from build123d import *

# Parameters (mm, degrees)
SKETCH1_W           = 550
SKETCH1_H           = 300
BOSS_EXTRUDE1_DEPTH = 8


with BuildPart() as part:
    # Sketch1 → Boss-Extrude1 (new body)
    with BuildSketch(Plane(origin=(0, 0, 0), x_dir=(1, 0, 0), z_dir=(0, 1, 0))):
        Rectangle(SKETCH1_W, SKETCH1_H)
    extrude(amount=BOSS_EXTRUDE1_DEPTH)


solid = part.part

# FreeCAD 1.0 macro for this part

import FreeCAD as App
import Part
import Sketcher
from FreeCAD import Vector
Q = App.Units.Quantity


def add_polygon(sketch, points):
    """Adds a closed chain of lines whose ends are joined by coincident constraints."""
    first, n = sketch.GeometryCount, len(points)
    for a, b in zip(points, points[1:] + points[:1]):
        sketch.addGeometry(Part.LineSegment(App.Vector(*a, 0), App.Vector(*b, 0)), False)
    for i in range(n):
        sketch.addConstraint(Sketcher.Constraint("Coincident", first + i, 2, first + (i + 1) % n, 1))

doc = App.newDocument("Part")
body = doc.addObject("PartDesign::Body", "Body")

sketch1 = doc.addObject("Sketcher::SketchObject", "Sketch")
body.addObject(sketch1)
sketch1.AttachmentSupport = (doc.XZ_Plane, [""])
sketch1.MapMode = "FlatFace"
add_polygon(sketch1, [(-275, -150), (-275, 150), (275, 150), (275, -150)])
sketch1.addConstraint([
    Sketcher.Constraint("Vertical", 0),
    Sketcher.Constraint("Horizontal", 1),
    Sketcher.Constraint("Vertical", 2),
    Sketcher.Constraint("Horizontal", 3),
    Sketcher.Constraint("Symmetric", 0, 2, 2, 2, -1, 1),
    Sketcher.Constraint("DistanceX", 1, 1, 1, 2, Q("550 mm")),
    Sketcher.Constraint("DistanceY", 0, 1, 0, 2, Q("300 mm")),
])
pad1 = doc.addObject("PartDesign::Pad", "Pad")
body.addObject(pad1)
pad1.Profile = sketch1
pad1.Length = 8
pad1.Reversed = True

doc.recompute()
